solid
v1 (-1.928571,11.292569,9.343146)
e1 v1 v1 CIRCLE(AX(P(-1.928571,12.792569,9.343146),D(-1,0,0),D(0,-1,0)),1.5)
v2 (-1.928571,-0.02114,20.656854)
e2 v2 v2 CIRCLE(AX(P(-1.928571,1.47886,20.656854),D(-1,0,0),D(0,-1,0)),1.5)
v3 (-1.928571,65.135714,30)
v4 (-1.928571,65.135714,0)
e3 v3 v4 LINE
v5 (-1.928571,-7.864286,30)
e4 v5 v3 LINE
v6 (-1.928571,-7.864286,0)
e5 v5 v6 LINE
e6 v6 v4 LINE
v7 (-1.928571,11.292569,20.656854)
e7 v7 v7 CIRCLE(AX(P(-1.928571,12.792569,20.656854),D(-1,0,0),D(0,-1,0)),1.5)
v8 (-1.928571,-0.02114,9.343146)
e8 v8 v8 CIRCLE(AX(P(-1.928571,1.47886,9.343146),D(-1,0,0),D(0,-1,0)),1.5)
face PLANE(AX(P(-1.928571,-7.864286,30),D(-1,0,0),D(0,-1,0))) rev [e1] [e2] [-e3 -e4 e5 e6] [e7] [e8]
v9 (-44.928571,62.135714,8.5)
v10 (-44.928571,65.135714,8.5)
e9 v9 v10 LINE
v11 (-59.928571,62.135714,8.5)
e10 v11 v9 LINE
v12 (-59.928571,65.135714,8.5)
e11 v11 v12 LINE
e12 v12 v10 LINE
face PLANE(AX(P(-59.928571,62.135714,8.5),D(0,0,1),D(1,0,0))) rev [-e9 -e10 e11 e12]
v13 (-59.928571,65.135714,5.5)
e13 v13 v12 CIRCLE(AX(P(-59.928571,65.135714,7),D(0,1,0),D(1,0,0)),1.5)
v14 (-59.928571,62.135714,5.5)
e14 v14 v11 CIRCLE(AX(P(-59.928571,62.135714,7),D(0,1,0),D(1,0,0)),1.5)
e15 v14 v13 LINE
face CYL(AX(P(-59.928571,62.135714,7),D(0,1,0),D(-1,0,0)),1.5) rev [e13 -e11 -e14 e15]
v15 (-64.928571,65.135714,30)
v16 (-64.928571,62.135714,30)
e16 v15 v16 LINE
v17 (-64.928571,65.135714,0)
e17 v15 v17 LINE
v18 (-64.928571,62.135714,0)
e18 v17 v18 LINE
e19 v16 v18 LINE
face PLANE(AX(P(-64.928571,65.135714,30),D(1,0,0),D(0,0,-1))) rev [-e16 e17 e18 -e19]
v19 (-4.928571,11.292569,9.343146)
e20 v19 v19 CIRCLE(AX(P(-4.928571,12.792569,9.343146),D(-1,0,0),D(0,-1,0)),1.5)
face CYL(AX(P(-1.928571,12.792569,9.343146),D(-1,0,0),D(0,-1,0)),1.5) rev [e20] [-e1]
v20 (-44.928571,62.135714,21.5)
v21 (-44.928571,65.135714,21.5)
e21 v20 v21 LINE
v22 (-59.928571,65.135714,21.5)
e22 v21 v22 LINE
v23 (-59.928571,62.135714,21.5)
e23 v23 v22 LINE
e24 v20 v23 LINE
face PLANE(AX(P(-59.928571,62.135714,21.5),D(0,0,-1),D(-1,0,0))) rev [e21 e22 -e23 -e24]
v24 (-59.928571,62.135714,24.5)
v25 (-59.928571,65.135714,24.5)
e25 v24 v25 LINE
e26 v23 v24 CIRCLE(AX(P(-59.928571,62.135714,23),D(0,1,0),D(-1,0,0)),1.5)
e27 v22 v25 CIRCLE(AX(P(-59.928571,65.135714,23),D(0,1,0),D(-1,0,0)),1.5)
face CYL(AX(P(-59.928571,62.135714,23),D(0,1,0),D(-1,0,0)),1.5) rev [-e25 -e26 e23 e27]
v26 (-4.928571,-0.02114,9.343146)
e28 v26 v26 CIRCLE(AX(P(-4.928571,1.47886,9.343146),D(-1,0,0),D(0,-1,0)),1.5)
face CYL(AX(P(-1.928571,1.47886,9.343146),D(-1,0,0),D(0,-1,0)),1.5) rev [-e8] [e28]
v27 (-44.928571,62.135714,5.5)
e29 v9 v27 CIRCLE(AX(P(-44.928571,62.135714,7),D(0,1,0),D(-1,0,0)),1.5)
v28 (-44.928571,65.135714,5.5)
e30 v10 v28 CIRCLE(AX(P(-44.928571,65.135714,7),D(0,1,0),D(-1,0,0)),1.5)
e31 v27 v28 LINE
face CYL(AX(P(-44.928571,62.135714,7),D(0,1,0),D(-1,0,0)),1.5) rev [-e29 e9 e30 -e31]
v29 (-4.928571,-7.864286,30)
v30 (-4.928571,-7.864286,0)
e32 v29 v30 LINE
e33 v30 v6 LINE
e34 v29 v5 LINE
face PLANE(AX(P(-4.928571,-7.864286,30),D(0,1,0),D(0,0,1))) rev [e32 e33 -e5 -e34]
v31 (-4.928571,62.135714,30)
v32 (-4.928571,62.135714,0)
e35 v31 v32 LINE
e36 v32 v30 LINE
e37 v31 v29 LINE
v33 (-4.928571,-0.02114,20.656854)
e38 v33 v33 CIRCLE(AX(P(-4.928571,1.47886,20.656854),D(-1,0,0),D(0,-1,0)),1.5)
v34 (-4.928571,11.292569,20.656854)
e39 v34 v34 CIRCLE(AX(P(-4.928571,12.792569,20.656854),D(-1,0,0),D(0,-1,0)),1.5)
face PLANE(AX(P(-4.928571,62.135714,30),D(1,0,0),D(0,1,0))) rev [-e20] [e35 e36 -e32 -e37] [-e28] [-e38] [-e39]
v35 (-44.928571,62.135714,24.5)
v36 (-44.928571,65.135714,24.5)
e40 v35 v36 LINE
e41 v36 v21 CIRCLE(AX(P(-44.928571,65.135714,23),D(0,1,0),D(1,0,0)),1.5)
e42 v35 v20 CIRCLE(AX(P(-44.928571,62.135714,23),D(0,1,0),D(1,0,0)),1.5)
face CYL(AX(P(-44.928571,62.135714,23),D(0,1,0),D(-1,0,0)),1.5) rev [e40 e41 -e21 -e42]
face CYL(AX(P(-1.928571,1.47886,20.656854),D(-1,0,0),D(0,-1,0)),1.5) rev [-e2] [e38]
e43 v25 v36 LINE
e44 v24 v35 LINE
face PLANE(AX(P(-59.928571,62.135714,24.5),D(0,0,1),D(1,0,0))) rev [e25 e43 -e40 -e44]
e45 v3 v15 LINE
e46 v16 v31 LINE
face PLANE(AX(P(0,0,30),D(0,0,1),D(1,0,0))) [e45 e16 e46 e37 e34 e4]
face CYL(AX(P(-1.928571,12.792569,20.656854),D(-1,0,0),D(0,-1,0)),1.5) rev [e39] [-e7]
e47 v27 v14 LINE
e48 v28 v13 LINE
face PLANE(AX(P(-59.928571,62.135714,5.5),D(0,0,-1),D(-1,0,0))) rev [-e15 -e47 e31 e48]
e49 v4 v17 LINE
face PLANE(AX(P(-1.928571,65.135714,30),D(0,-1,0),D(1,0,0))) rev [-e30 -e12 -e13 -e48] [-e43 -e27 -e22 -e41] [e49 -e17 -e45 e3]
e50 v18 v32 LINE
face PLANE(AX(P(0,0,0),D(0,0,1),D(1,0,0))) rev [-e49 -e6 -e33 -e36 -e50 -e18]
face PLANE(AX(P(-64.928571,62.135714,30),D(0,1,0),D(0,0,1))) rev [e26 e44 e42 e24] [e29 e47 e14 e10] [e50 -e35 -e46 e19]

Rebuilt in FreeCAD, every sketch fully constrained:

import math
import FreeCAD as App
import Part
import Sketcher
from FreeCAD import Vector
Q = App.Units.Quantity

doc = App.newDocument("Part")
body = doc.addObject("PartDesign::Body", "Body")

# Sketch on XY plane
sketch1 = body.newObject("Sketcher::SketchObject", "Sketch")
sketch1.AttachmentSupport = (doc.getObject("XY_Plane"), [""])
sketch1.MapMode = "FlatFace"
sketch1.addGeometry([
    Part.LineSegment(Vector(-64.9, 65.1, 0), Vector(-64.9, 62.1, 0)),  # 0
    Part.LineSegment(Vector(-64.9, 62.1, 0), Vector(-4.9, 62.1, 0)),  # 1
    Part.LineSegment(Vector(-4.9, 62.1, 0), Vector(-4.9, -7.9, 0)),  # 2
    Part.LineSegment(Vector(-4.9, -7.9, 0), Vector(-1.9, -7.9, 0)),  # 3
    Part.LineSegment(Vector(-1.9, -7.9, 0), Vector(-1.9, 65.1, 0)),  # 4
    Part.LineSegment(Vector(-1.9, 65.1, 0), Vector(-64.9, 65.1, 0)),  # 5
], False)
sketch1.addConstraint([
    Sketcher.Constraint("Coincident", 0, 2, 1, 1),
    Sketcher.Constraint("Coincident", 1, 2, 2, 1),
    Sketcher.Constraint("Coincident", 2, 2, 3, 1),
    Sketcher.Constraint("Coincident", 3, 2, 4, 1),
    Sketcher.Constraint("Coincident", 4, 2, 5, 1),
    Sketcher.Constraint("Coincident", 5, 2, 0, 1),
    Sketcher.Constraint("Vertical", 0),
    Sketcher.Constraint("Horizontal", 1),
    Sketcher.Constraint("Vertical", 2),
    Sketcher.Constraint("Horizontal", 3),
    Sketcher.Constraint("Vertical", 4),
    Sketcher.Constraint("Horizontal", 5),
    Sketcher.Constraint("Equal", 3, 0),
    Sketcher.Constraint("DistanceX", 1, 1, 1, 2, Q("60 mm")),
    Sketcher.Constraint("DistanceX", 3, 1, 3, 2, Q("3 mm")),
    Sketcher.Constraint("DistanceY", 2, 2, 2, 1, Q("70 mm")),
    Sketcher.Constraint("DistanceX", 0, 2, -1, 1, Q("64.928571 mm")),
    Sketcher.Constraint("DistanceY", -1, 1, 0, 2, Q("62.135714 mm")),
])
pad1 = body.newObject("PartDesign::Pad", "Pad")
pad1.Profile = sketch1
pad1.Length = 30

# Sketch on XZ plane
sketch2 = body.newObject("Sketcher::SketchObject", "Sketch001")
sketch2.AttachmentSupport = (doc.getObject("XZ_Plane"), [""])
sketch2.MapMode = "FlatFace"
sketch2.AttachmentOffset = App.Placement(Vector(0, 0, -65.135714), App.Rotation())
sketch2.addGeometry([
    Part.LineSegment(Vector(-59.9, 24.5, 0), Vector(-44.9, 24.5, 0)),  # 0
    Part.ArcOfCircle(Part.Circle(Vector(-44.9, 23, 0), Vector(0, 0, 1), 1.5), math.radians(-90), math.radians(90)),  # 1
    Part.LineSegment(Vector(-44.9, 21.5, 0), Vector(-59.9, 21.5, 0)),  # 2
    Part.ArcOfCircle(Part.Circle(Vector(-59.9, 23, 0), Vector(0, 0, 1), 1.5), math.radians(90), math.radians(270)),  # 3
    Part.LineSegment(Vector(-59.9, 8.5, 0), Vector(-44.9, 8.5, 0)),  # 4
    Part.ArcOfCircle(Part.Circle(Vector(-44.9, 7, 0), Vector(0, 0, 1), 1.5), math.radians(-90), math.radians(90)),  # 5
    Part.LineSegment(Vector(-44.9, 5.5, 0), Vector(-59.9, 5.5, 0)),  # 6
    Part.ArcOfCircle(Part.Circle(Vector(-59.9, 7, 0), Vector(0, 0, 1), 1.5), math.radians(90), math.radians(270)),  # 7
], False)
sketch2.addConstraint([
    Sketcher.Constraint("Tangent", 0, 2, 1, 2),
    Sketcher.Constraint("Tangent", 1, 1, 2, 1),
    Sketcher.Constraint("Tangent", 2, 2, 3, 2),
    Sketcher.Constraint("Tangent", 3, 1, 0, 1),
    Sketcher.Constraint("Tangent", 4, 2, 5, 2),
    Sketcher.Constraint("Tangent", 5, 1, 6, 1),
    Sketcher.Constraint("Tangent", 6, 2, 7, 2),
    Sketcher.Constraint("Tangent", 7, 1, 4, 1),
    Sketcher.Constraint("Horizontal", 0),
    Sketcher.Constraint("Horizontal", 2),
    Sketcher.Constraint("Horizontal", 4),
    Sketcher.Constraint("Horizontal", 6),
    Sketcher.Constraint("Equal", 3, 5),
    Sketcher.Constraint("Vertical", 1, 3, 5, 3),
    Sketcher.Constraint("Vertical", 3, 3, 7, 3),
    Sketcher.Constraint("Radius", 1, Q("1.5 mm")),
    Sketcher.Constraint("DistanceX", 0, 1, 0, 2, Q("15 mm")),
    Sketcher.Constraint("DistanceY", -1, 1, 1, 3, Q("23 mm")),
    Sketcher.Constraint("DistanceY", -1, 1, 5, 3, Q("7 mm")),
    Sketcher.Constraint("DistanceX", 1, 3, -1, 1, Q("44.928571 mm")),
])
pocket1 = body.newObject("PartDesign::Pocket", "Pocket")
pocket1.Profile = sketch2
pocket1.Length = 3
pocket1.Reversed = True

# Sketch on YZ plane
sketch3 = body.newObject("Sketcher::SketchObject", "Sketch002")
sketch3.AttachmentSupport = (doc.getObject("YZ_Plane"), [""])
sketch3.MapMode = "FlatFace"
sketch3.AttachmentOffset = App.Placement(Vector(0, 0, -4.928571), App.Rotation())
sketch3.addGeometry([
    Part.Circle(Vector(1.5, 20.7, 0), Vector(0, 0, 1), 1.5),
    Part.Circle(Vector(1.5, 9.3, 0), Vector(0, 0, 1), 1.5),
    Part.Circle(Vector(12.8, 9.3, 0), Vector(0, 0, 1), 1.5),
    Part.Circle(Vector(12.8, 20.7, 0), Vector(0, 0, 1), 1.5),
], False)
sketch3.addConstraint([
    Sketcher.Constraint("Equal", 0, 1),
    Sketcher.Constraint("Equal", 1, 2),
    Sketcher.Constraint("Equal", 2, 3),
    Sketcher.Constraint("Horizontal", 1, 3, 2, 3),
    Sketcher.Constraint("Horizontal", 0, 3, 3, 3),
    Sketcher.Constraint("Vertical", 0, 3, 1, 3),
    Sketcher.Constraint("Vertical", 2, 3, 3, 3),
    Sketcher.Constraint("Diameter", 0, Q("3 mm")),
    Sketcher.Constraint("DistanceX", -1, 1, 0, 3, Q("1.47886 mm")),
    Sketcher.Constraint("DistanceX", -1, 1, 2, 3, Q("12.792569 mm")),
    Sketcher.Constraint("DistanceY", 1, 3, 0, 3, Q("11.313708 mm")),
    Sketcher.Constraint("DistanceY", -1, 1, 0, 3, Q("20.656854 mm")),
])
pocket2 = body.newObject("PartDesign::Pocket", "Pocket001")
pocket2.Profile = sketch3
pocket2.Length = 3
pocket2.Reversed = True

doc.recompute()
